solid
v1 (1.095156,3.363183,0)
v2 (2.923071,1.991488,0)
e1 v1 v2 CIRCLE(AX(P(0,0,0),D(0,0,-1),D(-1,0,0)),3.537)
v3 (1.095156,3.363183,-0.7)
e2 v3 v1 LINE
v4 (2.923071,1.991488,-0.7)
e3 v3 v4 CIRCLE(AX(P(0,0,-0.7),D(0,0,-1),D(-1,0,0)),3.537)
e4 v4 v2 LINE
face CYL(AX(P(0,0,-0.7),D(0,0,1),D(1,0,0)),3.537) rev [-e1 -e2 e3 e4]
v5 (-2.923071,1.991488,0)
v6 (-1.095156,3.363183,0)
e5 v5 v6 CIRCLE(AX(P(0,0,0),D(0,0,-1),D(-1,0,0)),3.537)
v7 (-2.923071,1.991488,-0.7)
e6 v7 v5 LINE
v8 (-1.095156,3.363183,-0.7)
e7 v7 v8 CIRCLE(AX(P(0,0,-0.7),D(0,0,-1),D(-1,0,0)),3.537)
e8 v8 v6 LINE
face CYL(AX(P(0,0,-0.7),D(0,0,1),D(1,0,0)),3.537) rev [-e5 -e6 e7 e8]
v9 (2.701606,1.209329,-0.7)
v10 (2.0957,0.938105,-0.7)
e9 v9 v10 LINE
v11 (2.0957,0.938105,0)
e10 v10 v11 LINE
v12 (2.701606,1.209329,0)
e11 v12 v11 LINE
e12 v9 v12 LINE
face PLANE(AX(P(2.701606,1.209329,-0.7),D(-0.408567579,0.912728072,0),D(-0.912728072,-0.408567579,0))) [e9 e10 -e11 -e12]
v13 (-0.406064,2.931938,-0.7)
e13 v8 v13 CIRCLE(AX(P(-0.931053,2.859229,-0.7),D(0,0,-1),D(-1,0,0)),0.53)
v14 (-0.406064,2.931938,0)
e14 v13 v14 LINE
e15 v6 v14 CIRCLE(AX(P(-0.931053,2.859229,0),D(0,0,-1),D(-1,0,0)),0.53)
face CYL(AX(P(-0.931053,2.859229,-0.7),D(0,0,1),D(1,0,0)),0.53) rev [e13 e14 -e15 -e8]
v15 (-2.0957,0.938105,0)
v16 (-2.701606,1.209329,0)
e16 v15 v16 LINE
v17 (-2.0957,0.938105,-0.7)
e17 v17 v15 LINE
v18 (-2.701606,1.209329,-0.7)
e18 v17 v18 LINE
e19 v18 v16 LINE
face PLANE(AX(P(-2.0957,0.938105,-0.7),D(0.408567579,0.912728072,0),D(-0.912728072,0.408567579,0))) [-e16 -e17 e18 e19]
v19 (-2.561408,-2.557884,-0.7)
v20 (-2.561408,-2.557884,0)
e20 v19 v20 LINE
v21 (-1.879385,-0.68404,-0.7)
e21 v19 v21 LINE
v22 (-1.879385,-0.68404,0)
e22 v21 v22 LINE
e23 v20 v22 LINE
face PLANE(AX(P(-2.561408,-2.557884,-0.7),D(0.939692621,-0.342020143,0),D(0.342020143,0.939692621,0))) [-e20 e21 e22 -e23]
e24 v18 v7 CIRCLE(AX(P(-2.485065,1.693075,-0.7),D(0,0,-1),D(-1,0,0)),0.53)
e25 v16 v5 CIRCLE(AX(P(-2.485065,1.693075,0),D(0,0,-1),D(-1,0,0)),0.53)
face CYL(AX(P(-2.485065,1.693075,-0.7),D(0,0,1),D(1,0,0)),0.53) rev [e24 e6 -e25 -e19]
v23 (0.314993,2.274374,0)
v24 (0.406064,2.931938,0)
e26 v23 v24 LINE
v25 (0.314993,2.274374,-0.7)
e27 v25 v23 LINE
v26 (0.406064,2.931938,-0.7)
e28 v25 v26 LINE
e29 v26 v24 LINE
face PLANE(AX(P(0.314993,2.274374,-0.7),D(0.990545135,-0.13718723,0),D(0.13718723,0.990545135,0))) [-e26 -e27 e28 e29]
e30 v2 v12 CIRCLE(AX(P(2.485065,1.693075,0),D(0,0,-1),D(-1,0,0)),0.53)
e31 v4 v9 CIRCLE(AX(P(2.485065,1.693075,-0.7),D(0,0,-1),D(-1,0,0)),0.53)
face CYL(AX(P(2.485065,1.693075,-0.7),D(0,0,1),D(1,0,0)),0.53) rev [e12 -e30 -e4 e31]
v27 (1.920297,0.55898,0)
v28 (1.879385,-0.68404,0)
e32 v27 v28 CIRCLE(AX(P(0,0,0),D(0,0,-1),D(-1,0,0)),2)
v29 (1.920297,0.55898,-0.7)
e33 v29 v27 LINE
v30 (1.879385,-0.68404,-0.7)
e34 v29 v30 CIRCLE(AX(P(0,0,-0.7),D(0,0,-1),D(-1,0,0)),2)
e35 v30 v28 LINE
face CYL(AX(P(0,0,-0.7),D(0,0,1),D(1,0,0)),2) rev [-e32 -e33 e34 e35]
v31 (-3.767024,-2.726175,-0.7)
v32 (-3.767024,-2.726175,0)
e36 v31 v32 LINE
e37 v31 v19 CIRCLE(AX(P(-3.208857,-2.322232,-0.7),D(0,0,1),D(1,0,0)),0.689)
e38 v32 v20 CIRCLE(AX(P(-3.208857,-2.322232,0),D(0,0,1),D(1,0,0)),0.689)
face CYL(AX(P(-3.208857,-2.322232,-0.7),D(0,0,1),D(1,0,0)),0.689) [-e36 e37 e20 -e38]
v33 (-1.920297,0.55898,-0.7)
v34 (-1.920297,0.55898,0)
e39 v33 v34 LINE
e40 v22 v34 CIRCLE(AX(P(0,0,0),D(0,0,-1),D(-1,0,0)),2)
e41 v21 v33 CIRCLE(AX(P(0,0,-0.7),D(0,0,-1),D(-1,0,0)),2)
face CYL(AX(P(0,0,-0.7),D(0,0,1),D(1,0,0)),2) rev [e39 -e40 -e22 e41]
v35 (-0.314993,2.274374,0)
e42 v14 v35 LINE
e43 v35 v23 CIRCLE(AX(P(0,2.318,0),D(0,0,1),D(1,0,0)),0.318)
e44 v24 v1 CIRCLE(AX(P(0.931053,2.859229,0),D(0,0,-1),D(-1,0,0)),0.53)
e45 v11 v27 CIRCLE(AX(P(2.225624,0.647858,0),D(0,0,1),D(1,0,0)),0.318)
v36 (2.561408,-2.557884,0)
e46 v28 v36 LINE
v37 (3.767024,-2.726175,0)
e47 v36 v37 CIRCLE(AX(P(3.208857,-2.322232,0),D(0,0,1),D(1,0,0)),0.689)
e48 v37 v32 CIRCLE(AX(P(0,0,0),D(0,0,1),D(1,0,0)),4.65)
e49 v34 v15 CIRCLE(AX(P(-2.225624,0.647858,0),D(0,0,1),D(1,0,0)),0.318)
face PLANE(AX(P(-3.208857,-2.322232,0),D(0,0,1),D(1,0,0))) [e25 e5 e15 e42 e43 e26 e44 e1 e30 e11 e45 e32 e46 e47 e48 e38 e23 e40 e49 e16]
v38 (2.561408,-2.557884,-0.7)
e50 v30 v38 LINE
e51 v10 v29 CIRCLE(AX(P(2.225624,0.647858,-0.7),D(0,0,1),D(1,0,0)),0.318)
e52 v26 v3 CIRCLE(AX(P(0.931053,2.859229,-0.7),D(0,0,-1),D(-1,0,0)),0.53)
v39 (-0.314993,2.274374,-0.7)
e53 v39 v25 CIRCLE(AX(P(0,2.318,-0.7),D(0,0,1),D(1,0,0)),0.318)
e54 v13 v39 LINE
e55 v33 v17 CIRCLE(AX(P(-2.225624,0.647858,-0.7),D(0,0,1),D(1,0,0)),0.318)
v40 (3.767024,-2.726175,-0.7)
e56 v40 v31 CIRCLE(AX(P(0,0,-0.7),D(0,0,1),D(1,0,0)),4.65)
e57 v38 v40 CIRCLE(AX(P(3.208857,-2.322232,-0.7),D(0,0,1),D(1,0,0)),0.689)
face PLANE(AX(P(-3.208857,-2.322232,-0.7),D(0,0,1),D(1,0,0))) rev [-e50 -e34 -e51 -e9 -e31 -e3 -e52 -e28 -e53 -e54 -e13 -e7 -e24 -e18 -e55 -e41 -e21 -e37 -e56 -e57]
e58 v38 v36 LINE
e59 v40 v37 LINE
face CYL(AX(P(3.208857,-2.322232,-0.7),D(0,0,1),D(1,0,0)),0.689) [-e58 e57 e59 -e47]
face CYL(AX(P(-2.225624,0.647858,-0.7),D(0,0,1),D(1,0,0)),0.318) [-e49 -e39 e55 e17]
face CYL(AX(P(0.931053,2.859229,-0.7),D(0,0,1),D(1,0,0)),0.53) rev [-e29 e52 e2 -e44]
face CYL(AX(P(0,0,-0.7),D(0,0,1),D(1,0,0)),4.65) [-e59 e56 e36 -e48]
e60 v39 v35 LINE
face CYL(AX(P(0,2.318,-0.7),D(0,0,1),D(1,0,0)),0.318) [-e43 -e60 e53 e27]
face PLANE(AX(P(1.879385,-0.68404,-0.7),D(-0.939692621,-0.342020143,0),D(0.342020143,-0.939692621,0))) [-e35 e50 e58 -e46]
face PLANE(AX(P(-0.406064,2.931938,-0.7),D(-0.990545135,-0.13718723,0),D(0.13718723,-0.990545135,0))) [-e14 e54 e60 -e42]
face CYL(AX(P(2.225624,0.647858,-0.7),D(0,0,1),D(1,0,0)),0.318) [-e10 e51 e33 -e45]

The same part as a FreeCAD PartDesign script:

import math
import FreeCAD as App
import Part
import Sketcher

V = App.Vector
Q = App.Units.Quantity

doc = App.newDocument("Part")
params = doc.addObject("Spreadsheet::Sheet", "Params")
for row, (alias, value) in enumerate([
    ("sketch1_radius", "2 mm"),
    ("sketch1_radius2", "0.53 mm"),
    ("sketch1_radius3", "4.65 mm"),
    ("pad1_length", "0.7 mm"),
], start=1):
    params.set(f"A{row}", alias)
    params.set(f"B{row}", "=" + value)
    params.setAlias(f"B{row}", alias)

body = doc.addObject("PartDesign::Body", "Body")

# Sketch on XY plane
sketch1 = body.newObject("Sketcher::SketchObject", "Sketch")
sketch1.AttachmentSupport = (doc.getObject("XY_Plane"), [""])
sketch1.MapMode = "FlatFace"
sketch1.addGeometry([
    Part.LineSegment(V(-2.56, -2.56, 0), V(-1.88, -0.68, 0)),  # 0
    Part.ArcOfCircle(Part.Circle(V(0, 0, 0), V(0, 0, 1), 2), math.radians(164), math.radians(200)),  # 1
    Part.ArcOfCircle(Part.Circle(V(-2.23, 0.65, 0), V(0, 0, 1), 0.32), math.radians(-16), math.radians(66)),  # 2
    Part.LineSegment(V(-2.1, 0.94, 0), V(-2.7, 1.21, 0)),  # 3
    Part.ArcOfCircle(Part.Circle(V(-2.49, 1.69, 0), V(0, 0, 1), 0.53), math.radians(146), math.radians(246)),  # 4
    Part.ArcOfCircle(Part.Circle(V(0, 0, 0), V(0, 0, 1), 3.54), math.radians(108), math.radians(146)),  # 5
    Part.ArcOfCircle(Part.Circle(V(-0.93, 2.86, 0), V(0, 0, 1), 0.53), math.radians(8), math.radians(108)),  # 6
    Part.LineSegment(V(-0.41, 2.93, 0), V(-0.31, 2.27, 0)),  # 7
    Part.ArcOfCircle(Part.Circle(V(0, 2.32, 0), V(0, 0, 1), 0.32), math.radians(-172), math.radians(-8)),  # 8
    Part.LineSegment(V(0.31, 2.27, 0), V(0.41, 2.93, 0)),  # 9
    Part.ArcOfCircle(Part.Circle(V(0.93, 2.86, 0), V(0, 0, 1), 0.53), math.radians(72), math.radians(172)),  # 10
    Part.ArcOfCircle(Part.Circle(V(0, 0, 0), V(0, 0, 1), 3.54), math.radians(34), math.radians(72)),  # 11
    Part.ArcOfCircle(Part.Circle(V(2.49, 1.69, 0), V(0, 0, 1), 0.53), math.radians(-66), math.radians(34)),  # 12
    Part.LineSegment(V(2.7, 1.21, 0), V(2.1, 0.94, 0)),  # 13
    Part.ArcOfCircle(Part.Circle(V(2.23, 0.65, 0), V(0, 0, 1), 0.32), math.radians(114), math.radians(196)),  # 14
    Part.ArcOfCircle(Part.Circle(V(0, 0, 0), V(0, 0, 1), 2), math.radians(-20), math.radians(16)),  # 15
    Part.LineSegment(V(1.88, -0.68, 0), V(2.56, -2.56, 0)),  # 16
    Part.ArcOfCircle(Part.Circle(V(3.21, -2.32, 0), V(0, 0, 1), 0.69), math.radians(-160), math.radians(-36)),  # 17
    Part.ArcOfCircle(Part.Circle(V(0, 0, 0), V(0, 0, 1), 4.65), math.radians(-36), math.radians(216)),  # 18
    Part.ArcOfCircle(Part.Circle(V(-3.21, -2.32, 0), V(0, 0, 1), 0.69), math.radians(-144), math.radians(-20)),  # 19
], False)
sketch1.addConstraint([
    Sketcher.Constraint("Coincident", 0, 2, 1, 2),
    Sketcher.Constraint("Tangent", 1, 1, 2, 1),
    Sketcher.Constraint("Tangent", 2, 2, 3, 1),
    Sketcher.Constraint("Tangent", 3, 2, 4, 2),
    Sketcher.Constraint("Tangent", 4, 1, 5, 2),
    Sketcher.Constraint("Tangent", 5, 1, 6, 2),
    Sketcher.Constraint("Tangent", 6, 1, 7, 1),
    Sketcher.Constraint("Tangent", 7, 2, 8, 1),
    Sketcher.Constraint("Tangent", 8, 2, 9, 1),
    Sketcher.Constraint("Tangent", 9, 2, 10, 2),
    Sketcher.Constraint("Tangent", 10, 1, 11, 2),
    Sketcher.Constraint("Tangent", 11, 1, 12, 2),
    Sketcher.Constraint("Tangent", 12, 1, 13, 1),
    Sketcher.Constraint("Tangent", 13, 2, 14, 1),
    Sketcher.Constraint("Tangent", 14, 2, 15, 2),
    Sketcher.Constraint("Coincident", 15, 1, 16, 1),
    Sketcher.Constraint("Tangent", 16, 2, 17, 1),
    Sketcher.Constraint("Tangent", 17, 2, 18, 1),
    Sketcher.Constraint("Tangent", 18, 2, 19, 1),
    Sketcher.Constraint("Tangent", 19, 2, 0, 1),
    Sketcher.Constraint("Coincident", 1, 3, -1, 1),
    Sketcher.Constraint("Coincident", 5, 3, -1, 1),
    Sketcher.Constraint("Coincident", 11, 3, -1, 1),
    Sketcher.Constraint("Coincident", 15, 3, -1, 1),
    Sketcher.Constraint("Coincident", 18, 3, -1, 1),
    Sketcher.Constraint("Equal", 4, 6),
    Sketcher.Constraint("Equal", 2, 8),
    Sketcher.Constraint("Equal", 6, 10),
    Sketcher.Constraint("Equal", 5, 11),
    Sketcher.Constraint("Equal", 10, 12),
    Sketcher.Constraint("Equal", 8, 14),
    Sketcher.Constraint("Equal", 1, 15),
    Sketcher.Constraint("Equal", 17, 19),
    Sketcher.Constraint("Symmetric", 7, 2, 8, 2, -2),
    Sketcher.Constraint("Symmetric", 3, 2, 12, 1, -2),
    Sketcher.Constraint("Symmetric", 16, 2, 19, 2, -2),
    Sketcher.Constraint("Equal", 3, 7),
    Sketcher.Constraint("Radius", 1, 2.0),
    Sketcher.Constraint("Angle", 0, Q("70 deg")),
    Sketcher.Constraint("Radius", 4, 0.53),
    Sketcher.Constraint("Radius", 18, 4.65),
    Sketcher.Constraint("Radius", 2, 0.318),
    Sketcher.Constraint("Radius", 5, 3.537),
    Sketcher.Constraint("Radius", 17, 0.689),
    Sketcher.Constraint("DistanceY", -1, 1, 8, 3, 2.318),
    Sketcher.Constraint("DistanceX", 4, 3, 6, 1, 2.079001),
    Sketcher.Constraint("DistanceX", 2, 2, -1, 1, 2.0957),
    Sketcher.Constraint("DistanceY", 0, 2, 2, 3, 1.331898),
])
sketch1.setExpression("Constraints[37]", "Params.sketch1_radius")
sketch1.setExpression("Constraints[39]", "Params.sketch1_radius2")
sketch1.setExpression("Constraints[40]", "Params.sketch1_radius3")
pad1 = body.newObject("PartDesign::Pad", "Pad")
pad1.Profile = sketch1
pad1.setExpression("Length", "Params.pad1_length")
pad1.Reversed = True

doc.recompute()
